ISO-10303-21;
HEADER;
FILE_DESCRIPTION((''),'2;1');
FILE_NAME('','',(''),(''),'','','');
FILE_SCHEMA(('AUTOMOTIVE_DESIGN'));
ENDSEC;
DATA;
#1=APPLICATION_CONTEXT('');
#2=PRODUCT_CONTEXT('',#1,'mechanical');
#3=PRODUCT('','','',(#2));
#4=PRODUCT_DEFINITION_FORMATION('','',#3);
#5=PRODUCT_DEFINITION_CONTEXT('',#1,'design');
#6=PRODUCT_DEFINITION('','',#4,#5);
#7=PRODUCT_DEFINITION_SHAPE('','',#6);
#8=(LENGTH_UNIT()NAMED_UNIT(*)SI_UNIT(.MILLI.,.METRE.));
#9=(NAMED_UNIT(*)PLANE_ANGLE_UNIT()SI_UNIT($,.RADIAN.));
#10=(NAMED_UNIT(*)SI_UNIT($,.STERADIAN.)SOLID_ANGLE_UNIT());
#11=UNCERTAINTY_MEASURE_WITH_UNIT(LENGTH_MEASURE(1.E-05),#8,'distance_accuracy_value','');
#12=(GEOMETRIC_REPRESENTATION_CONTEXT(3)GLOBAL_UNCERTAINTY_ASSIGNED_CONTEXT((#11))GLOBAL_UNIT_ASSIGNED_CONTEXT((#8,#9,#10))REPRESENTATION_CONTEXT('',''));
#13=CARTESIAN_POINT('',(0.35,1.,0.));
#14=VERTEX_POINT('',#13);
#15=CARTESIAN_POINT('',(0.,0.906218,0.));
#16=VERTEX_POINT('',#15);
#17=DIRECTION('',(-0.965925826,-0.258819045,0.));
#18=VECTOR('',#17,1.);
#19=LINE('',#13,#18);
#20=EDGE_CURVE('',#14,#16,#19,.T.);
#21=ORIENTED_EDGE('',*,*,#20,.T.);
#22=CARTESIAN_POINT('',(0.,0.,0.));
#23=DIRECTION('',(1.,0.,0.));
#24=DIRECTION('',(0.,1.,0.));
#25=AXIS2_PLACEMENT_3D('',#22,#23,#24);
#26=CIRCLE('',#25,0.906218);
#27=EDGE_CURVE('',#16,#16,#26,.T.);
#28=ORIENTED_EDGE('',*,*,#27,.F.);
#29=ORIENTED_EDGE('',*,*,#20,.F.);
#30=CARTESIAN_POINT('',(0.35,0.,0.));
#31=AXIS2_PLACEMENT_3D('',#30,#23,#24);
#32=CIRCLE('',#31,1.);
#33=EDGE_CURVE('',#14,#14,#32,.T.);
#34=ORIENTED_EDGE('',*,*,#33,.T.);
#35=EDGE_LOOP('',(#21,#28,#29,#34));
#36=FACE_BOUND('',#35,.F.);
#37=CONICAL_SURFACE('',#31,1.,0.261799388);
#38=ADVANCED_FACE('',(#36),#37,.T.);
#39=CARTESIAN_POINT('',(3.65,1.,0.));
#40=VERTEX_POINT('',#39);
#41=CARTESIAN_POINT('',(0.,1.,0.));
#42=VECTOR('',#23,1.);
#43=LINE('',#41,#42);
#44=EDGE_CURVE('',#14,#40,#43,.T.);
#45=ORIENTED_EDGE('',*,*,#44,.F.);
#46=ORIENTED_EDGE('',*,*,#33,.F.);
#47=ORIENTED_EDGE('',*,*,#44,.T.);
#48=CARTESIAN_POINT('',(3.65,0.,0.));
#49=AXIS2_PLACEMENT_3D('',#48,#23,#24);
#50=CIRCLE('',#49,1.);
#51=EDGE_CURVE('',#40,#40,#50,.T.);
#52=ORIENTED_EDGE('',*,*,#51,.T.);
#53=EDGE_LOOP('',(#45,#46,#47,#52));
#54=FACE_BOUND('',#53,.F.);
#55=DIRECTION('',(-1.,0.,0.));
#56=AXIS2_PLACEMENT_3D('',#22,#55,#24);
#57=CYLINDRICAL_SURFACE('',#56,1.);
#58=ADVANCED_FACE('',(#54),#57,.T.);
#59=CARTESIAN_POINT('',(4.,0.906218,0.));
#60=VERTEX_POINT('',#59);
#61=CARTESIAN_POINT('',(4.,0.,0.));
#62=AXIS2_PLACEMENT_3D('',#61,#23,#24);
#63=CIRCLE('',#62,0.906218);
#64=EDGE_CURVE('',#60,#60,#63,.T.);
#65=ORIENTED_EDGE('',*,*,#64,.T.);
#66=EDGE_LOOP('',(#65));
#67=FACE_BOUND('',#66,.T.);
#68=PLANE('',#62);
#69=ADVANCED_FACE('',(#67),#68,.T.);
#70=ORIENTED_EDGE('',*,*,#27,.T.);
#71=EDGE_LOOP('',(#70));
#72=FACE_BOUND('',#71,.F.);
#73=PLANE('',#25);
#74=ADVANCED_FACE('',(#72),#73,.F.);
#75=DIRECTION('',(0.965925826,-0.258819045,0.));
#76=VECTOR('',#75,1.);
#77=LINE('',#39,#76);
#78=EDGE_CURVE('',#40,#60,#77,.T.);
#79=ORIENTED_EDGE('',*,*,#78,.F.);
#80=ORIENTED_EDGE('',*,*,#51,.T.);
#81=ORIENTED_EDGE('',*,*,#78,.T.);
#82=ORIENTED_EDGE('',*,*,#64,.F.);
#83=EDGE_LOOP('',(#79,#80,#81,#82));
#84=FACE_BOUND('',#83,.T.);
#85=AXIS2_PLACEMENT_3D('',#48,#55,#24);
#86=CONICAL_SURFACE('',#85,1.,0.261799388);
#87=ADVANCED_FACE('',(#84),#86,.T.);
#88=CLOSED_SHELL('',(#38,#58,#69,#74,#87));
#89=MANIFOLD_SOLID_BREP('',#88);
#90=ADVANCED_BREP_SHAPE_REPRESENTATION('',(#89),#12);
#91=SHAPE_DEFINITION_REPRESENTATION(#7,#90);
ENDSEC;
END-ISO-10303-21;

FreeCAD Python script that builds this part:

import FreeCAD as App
import Part
import Sketcher
Q = App.Units.Quantity


def edges_at(feature, points):
    """Names of the edges that pass closest to the given points."""
    edges = feature.Shape.Edges
    near = lambda p: min(range(len(edges)), key=lambda i: edges[i].distToShape(Part.Vertex(*p))[0])
    return sorted({f"Edge{near(p) + 1}" for p in points})

doc = App.newDocument("Part")
body = doc.addObject("PartDesign::Body", "Body")

# Sketch on YZ plane
sketch1 = doc.addObject("Sketcher::SketchObject", "Sketch")
body.addObject(sketch1)
sketch1.AttachmentSupport = (doc.YZ_Plane, [""])
sketch1.MapMode = "FlatFace"
sketch1.addGeometry(Part.Circle(App.Vector(0, 0, 0), App.Vector(0, 0, 1), 1), False)
sketch1.addConstraint([
    Sketcher.Constraint("Coincident", 0, 3, -1, 1),
    Sketcher.Constraint("Diameter", 0, Q("2 mm")),
])
pad1 = doc.addObject("PartDesign::Pad", "Pad")
body.addObject(pad1)
pad1.Profile = sketch1
pad1.Length = 4
doc.recompute()

chamfer = doc.addObject("PartDesign::Chamfer", "Chamfer")
body.addObject(chamfer)
chamfer.Base = (pad1, edges_at(pad1, [(0, -1, 0)]))
chamfer.ChamferType = "Distance and Angle"
chamfer.Size = 0.35
chamfer.Angle = 15
doc.recompute()

chamfer2 = doc.addObject("PartDesign::Chamfer", "Chamfer001")
body.addObject(chamfer2)
chamfer2.Base = (chamfer, edges_at(chamfer, [(4, -1, 0)]))
chamfer2.ChamferType = "Distance and Angle"
chamfer2.Size = 0.35
chamfer2.Angle = 15

doc.recompute()
